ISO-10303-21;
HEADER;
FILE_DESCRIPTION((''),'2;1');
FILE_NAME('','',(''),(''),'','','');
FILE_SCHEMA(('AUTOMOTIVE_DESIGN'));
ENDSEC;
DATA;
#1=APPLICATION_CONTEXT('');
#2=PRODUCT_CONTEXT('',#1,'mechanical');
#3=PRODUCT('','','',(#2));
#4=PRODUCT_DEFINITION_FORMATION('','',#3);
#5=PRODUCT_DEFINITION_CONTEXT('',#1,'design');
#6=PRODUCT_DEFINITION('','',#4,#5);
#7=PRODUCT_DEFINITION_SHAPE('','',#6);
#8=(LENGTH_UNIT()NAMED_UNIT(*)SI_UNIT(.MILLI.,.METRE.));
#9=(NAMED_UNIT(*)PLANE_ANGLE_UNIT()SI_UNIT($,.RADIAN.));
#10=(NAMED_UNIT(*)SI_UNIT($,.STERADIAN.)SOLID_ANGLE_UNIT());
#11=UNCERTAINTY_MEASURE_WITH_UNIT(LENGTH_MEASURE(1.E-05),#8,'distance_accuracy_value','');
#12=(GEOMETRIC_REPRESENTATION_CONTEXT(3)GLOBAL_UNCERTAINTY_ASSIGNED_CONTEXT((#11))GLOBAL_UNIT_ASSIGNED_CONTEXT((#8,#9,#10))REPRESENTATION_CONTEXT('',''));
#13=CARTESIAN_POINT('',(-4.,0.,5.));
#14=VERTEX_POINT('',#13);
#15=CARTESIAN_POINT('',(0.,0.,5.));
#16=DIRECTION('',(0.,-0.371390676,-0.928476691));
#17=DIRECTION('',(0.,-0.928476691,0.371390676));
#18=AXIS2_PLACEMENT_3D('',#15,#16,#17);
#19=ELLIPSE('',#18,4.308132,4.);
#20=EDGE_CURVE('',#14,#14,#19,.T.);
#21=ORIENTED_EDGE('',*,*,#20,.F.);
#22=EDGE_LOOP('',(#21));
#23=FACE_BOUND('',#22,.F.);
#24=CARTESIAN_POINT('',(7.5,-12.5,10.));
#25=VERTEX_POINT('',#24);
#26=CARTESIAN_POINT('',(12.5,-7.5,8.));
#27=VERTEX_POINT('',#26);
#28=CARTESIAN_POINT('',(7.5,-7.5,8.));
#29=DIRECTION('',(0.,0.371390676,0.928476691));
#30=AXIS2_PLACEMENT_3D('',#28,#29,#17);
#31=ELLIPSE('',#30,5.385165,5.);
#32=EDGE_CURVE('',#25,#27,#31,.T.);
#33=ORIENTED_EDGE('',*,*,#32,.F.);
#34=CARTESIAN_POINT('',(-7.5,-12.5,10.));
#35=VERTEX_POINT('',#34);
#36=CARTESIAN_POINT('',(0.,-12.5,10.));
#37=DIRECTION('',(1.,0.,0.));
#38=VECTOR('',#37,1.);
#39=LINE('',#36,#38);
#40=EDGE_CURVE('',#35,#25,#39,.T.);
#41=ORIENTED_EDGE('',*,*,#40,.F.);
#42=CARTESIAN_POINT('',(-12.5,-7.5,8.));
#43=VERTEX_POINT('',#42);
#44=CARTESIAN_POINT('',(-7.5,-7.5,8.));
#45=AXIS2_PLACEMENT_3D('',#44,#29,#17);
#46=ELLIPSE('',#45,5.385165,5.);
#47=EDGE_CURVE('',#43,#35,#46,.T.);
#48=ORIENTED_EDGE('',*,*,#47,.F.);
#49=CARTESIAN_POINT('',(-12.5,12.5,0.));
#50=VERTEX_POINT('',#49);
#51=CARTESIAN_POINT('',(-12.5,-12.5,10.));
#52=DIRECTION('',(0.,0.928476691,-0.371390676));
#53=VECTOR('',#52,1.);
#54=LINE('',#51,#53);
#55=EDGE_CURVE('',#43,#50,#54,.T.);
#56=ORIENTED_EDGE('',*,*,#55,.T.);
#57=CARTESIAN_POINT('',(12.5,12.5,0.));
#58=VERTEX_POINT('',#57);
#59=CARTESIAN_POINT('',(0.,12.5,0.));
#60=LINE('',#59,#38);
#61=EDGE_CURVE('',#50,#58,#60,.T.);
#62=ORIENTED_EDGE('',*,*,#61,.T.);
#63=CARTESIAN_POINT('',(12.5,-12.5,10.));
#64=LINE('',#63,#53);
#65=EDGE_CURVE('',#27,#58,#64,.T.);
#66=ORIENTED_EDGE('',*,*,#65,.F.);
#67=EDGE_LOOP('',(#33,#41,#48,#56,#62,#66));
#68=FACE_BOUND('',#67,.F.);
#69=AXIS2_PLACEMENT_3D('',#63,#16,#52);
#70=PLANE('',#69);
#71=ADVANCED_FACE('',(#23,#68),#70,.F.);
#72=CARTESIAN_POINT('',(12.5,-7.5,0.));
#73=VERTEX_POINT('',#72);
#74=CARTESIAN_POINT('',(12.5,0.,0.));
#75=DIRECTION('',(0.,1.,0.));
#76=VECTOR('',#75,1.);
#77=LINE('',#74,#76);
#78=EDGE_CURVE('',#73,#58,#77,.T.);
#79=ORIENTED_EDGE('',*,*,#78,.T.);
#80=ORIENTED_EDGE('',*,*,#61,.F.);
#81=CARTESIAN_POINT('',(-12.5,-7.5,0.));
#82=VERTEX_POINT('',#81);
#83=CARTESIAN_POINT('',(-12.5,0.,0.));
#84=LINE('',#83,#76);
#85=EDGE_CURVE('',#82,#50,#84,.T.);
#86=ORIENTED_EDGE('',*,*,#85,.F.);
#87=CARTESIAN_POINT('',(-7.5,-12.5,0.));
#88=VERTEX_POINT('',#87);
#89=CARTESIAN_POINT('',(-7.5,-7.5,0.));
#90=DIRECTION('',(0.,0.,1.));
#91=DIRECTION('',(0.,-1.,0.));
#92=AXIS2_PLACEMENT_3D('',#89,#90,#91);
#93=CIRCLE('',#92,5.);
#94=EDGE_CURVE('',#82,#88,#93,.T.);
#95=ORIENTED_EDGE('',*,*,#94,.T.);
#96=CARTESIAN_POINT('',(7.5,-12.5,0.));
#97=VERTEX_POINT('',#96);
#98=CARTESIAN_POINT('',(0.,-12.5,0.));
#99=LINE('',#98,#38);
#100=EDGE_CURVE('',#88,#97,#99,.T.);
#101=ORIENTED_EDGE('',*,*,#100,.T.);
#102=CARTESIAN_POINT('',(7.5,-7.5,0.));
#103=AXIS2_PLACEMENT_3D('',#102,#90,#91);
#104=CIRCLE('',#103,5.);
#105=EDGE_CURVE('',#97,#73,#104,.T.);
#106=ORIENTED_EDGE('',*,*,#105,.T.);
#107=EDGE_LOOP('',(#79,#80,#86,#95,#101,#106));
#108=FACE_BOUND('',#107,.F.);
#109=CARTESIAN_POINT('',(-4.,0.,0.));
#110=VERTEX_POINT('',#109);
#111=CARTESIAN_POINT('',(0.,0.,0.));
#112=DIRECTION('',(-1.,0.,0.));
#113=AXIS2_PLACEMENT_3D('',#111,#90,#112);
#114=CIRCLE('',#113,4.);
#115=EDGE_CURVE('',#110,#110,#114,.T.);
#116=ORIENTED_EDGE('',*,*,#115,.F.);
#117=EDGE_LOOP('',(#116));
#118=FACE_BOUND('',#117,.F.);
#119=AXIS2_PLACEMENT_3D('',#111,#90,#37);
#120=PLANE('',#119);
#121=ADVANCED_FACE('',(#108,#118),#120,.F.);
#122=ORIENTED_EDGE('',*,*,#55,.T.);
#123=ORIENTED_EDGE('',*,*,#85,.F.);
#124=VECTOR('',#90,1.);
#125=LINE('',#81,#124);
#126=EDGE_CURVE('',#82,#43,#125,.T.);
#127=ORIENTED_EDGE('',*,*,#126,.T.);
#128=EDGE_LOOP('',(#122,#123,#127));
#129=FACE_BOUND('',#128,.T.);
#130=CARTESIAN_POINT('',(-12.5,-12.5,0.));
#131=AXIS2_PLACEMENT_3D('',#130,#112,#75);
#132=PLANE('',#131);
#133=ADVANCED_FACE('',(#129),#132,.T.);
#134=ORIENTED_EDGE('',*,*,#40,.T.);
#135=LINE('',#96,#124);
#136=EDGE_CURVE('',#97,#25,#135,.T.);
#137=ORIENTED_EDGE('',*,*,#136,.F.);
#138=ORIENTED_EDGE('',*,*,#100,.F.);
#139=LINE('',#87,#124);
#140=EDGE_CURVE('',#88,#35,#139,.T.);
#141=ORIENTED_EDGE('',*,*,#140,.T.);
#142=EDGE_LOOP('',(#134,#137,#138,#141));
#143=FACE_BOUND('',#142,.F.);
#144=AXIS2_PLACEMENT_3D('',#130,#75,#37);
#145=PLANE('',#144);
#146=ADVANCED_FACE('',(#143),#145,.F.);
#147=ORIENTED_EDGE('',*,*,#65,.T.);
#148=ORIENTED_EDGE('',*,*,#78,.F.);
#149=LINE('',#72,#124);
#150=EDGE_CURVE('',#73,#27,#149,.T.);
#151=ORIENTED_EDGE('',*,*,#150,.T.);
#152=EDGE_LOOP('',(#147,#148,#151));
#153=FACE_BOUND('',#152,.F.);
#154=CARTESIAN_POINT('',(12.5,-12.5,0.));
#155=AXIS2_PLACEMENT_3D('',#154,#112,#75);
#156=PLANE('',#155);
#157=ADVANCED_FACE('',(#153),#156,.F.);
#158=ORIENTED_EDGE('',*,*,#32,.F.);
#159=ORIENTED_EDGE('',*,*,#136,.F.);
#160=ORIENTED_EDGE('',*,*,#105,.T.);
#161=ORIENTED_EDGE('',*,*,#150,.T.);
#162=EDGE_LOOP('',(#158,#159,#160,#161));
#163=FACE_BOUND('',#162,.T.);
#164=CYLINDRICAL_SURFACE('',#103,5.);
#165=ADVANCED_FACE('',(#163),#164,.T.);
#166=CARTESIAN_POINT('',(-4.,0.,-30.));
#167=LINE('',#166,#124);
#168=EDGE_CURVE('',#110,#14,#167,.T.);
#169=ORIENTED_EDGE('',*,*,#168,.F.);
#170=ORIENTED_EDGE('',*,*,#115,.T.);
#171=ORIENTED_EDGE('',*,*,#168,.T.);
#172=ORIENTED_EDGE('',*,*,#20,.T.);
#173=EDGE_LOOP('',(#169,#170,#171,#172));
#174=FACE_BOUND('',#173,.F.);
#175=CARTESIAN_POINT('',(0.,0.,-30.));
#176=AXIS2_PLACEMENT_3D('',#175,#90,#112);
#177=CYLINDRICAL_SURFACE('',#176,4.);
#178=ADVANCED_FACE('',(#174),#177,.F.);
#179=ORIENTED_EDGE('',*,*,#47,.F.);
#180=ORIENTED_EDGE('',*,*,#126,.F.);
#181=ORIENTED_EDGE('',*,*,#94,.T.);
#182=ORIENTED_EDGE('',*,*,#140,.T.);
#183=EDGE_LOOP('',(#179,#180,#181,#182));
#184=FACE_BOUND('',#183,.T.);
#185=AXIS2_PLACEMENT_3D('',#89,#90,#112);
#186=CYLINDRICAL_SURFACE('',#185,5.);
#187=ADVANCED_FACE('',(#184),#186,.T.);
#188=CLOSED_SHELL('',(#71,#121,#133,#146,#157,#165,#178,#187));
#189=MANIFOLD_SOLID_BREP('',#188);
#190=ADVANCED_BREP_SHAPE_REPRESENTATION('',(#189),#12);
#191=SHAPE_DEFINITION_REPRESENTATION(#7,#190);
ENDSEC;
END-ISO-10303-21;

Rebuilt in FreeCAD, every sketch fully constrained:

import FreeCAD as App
import Part
import Sketcher

V = App.Vector
Q = App.Units.Quantity


def edges_at(feature, points):
    """Names of the edges that pass closest to the given points."""
    edges = feature.Shape.Edges
    near = lambda p: min(range(len(edges)), key=lambda i: edges[i].distToShape(Part.Vertex(*p))[0])
    return sorted({f"Edge{near(p) + 1}" for p in points})

doc = App.newDocument("Part")
body = doc.addObject("PartDesign::Body", "Body")

# Sketch on XY plane
sketch1 = body.newObject("Sketcher::SketchObject", "Sketch")
sketch1.AttachmentSupport = (doc.getObject("XY_Plane"), [""])
sketch1.MapMode = "FlatFace"
sketch1.addGeometry(Part.LineSegment(V(-12, 12, 0), V(-12, -12, 0)), False)
sketch1.addGeometry(Part.LineSegment(V(-12, -12, 0), V(12, -12, 0)), False)
sketch1.addGeometry(Part.LineSegment(V(12, -12, 0), V(12, 12, 0)), False)
sketch1.addGeometry(Part.LineSegment(V(12, 12, 0), V(-12, 12, 0)), False)
sketch1.addConstraint(Sketcher.Constraint("Coincident", 0, 2, 1, 1))
sketch1.addConstraint(Sketcher.Constraint("Coincident", 1, 2, 2, 1))
sketch1.addConstraint(Sketcher.Constraint("Coincident", 2, 2, 3, 1))
sketch1.addConstraint(Sketcher.Constraint("Coincident", 3, 2, 0, 1))
sketch1.addConstraint(Sketcher.Constraint("Vertical", 0))
sketch1.addConstraint(Sketcher.Constraint("Horizontal", 1))
sketch1.addConstraint(Sketcher.Constraint("Vertical", 2))
sketch1.addConstraint(Sketcher.Constraint("Horizontal", 3))
sketch1.addConstraint(Sketcher.Constraint("Symmetric", 0, 2, 2, 2, -1, 1))
sketch1.addConstraint(Sketcher.Constraint("Equal", 3, 0))
sketch1.addConstraint(Sketcher.Constraint("DistanceX", 1, 1, 1, 2, Q("25 mm")))
pad1 = body.newObject("PartDesign::Pad", "Pad")
pad1.Profile = sketch1
pad1.Length = 10

# Sketch on YZ plane
sketch2 = body.newObject("Sketcher::SketchObject", "Sketch001")
sketch2.AttachmentSupport = (doc.getObject("YZ_Plane"), [""])
sketch2.MapMode = "FlatFace"
sketch2.AttachmentOffset = App.Placement(V(0, 0, 12.5), App.Rotation())
sketch2.addGeometry(Part.LineSegment(V(12, 10, 0), V(-12, 10, 0)), False)
sketch2.addGeometry(Part.LineSegment(V(-12, 10, 0), V(12, 0, 0)), False)
sketch2.addGeometry(Part.LineSegment(V(12, 0, 0), V(12, 10, 0)), False)
sketch2.addConstraint(Sketcher.Constraint("Coincident", 0, 2, 1, 1))
sketch2.addConstraint(Sketcher.Constraint("Coincident", 1, 2, 2, 1))
sketch2.addConstraint(Sketcher.Constraint("Coincident", 2, 2, 0, 1))
sketch2.addConstraint(Sketcher.Constraint("Horizontal", 0))
sketch2.addConstraint(Sketcher.Constraint("Vertical", 2))
sketch2.addConstraint(Sketcher.Constraint("PointOnObject", 1, 2, -1))
sketch2.addConstraint(Sketcher.Constraint("DistanceX", 0, 2, 0, 1, Q("25 mm")))
sketch2.addConstraint(Sketcher.Constraint("DistanceY", 2, 1, 2, 2, Q("10 mm")))
sketch2.addConstraint(Sketcher.Constraint("DistanceX", 0, 2, -1, 1, Q("12.5 mm")))
pocket1 = body.newObject("PartDesign::Pocket", "Pocket")
pocket1.Profile = sketch2
pocket1.Length = 25

# Sketch on XY plane
sketch3 = body.newObject("Sketcher::SketchObject", "Sketch002")
sketch3.AttachmentSupport = (doc.getObject("XY_Plane"), [""])
sketch3.MapMode = "FlatFace"
sketch3.addGeometry(Part.Circle(V(0, 0, 0), V(0, 0, 1), 4), False)
sketch3.addConstraint(Sketcher.Constraint("Coincident", 0, 3, -1, 1))
sketch3.addConstraint(Sketcher.Constraint("Diameter", 0, Q("8 mm")))
doc.recompute()
hole = body.newObject("PartDesign::Hole", "Hole")
hole.Profile = sketch3
hole.ThreadType = "None"
hole.Diameter = 8
hole.DepthType = "Dimension"
hole.Depth = 30
hole.DrillPoint = "Flat"
hole.Reversed = True
doc.recompute()

fillet = body.newObject("PartDesign::Fillet", "Fillet")
fillet.Base = (hole, edges_at(hole, [(12.5, -12.5, 5), (-12.5, -12.5, 5)]))
fillet.Radius = 5

doc.recompute()
